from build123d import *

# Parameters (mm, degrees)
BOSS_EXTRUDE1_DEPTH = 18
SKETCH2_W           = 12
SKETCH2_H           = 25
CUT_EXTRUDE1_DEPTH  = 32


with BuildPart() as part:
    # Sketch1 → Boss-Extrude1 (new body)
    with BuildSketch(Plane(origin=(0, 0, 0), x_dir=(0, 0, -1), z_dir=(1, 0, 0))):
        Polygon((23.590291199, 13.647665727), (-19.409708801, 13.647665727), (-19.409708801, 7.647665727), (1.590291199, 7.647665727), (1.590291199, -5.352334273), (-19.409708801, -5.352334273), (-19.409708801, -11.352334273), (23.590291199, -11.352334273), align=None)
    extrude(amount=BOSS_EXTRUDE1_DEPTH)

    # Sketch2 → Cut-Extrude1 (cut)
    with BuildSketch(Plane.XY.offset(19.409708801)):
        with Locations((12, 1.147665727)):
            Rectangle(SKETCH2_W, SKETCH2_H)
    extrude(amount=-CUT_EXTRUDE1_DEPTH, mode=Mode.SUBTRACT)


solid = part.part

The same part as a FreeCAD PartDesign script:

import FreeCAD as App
import Part
import Sketcher
Q = App.Units.Quantity


def add_polygon(sketch, points):
    """Adds a closed chain of lines whose ends are joined by coincident constraints."""
    first, n = sketch.GeometryCount, len(points)
    for a, b in zip(points, points[1:] + points[:1]):
        sketch.addGeometry(Part.LineSegment(App.Vector(*a, 0), App.Vector(*b, 0)), False)
    for i in range(n):
        sketch.addConstraint(Sketcher.Constraint("Coincident", first + i, 2, first + (i + 1) % n, 1))

doc = App.newDocument("Part")
body = doc.addObject("PartDesign::Body", "Body")

sketch1 = body.newObject("Sketcher::SketchObject", "Sketch")
sketch1.AttachmentSupport = (doc.getObject("YZ_Plane"), [""])
sketch1.MapMode = "FlatFace"
add_polygon(sketch1, [(13.647666, -23.590291), (13.647666, 19.409709), (7.647666, 19.409709), (7.647666, -1.590291), (-5.352334, -1.590291), (-5.352334, 19.409709), (-11.352334, 19.409709), (-11.352334, -23.590291)])
sketch1.addConstraint([
    Sketcher.Constraint("Vertical", 0),
    Sketcher.Constraint("Horizontal", 1),
    Sketcher.Constraint("Vertical", 2),
    Sketcher.Constraint("Horizontal", 3),
    Sketcher.Constraint("Vertical", 4),
    Sketcher.Constraint("Horizontal", 5),
    Sketcher.Constraint("Vertical", 6),
    Sketcher.Constraint("Horizontal", 7),
    Sketcher.Constraint("Horizontal", 1, 2, 4, 2),
    Sketcher.Constraint("Equal", 1, 5),
    Sketcher.Constraint("DistanceX", 1, 2, 1, 1, Q("6 mm")),
    Sketcher.Constraint("DistanceX", 3, 2, 3, 1, Q("13 mm")),
    Sketcher.Constraint("DistanceY", 0, 1, 0, 2, Q("43 mm")),
    Sketcher.Constraint("DistanceY", 2, 2, 2, 1, Q("21 mm")),
    Sketcher.Constraint("DistanceY", -1, 1, 0, 2, Q("19.409709 mm")),
    Sketcher.Constraint("DistanceX", -1, 1, 0, 2, Q("13.647666 mm")),
])
pad1 = body.newObject("PartDesign::Pad", "Pad")
pad1.Profile = sketch1
pad1.Length = 18

sketch2 = body.newObject("Sketcher::SketchObject", "Sketch001")
sketch2.AttachmentSupport = (doc.getObject("XY_Plane"), [""])
sketch2.MapMode = "FlatFace"
sketch2.AttachmentOffset = App.Placement(App.Vector(0, 0, 19.409709), App.Rotation())
add_polygon(sketch2, [(6, 13.647666), (6, -11.352334), (18, -11.352334), (18, 13.647666)])
sketch2.addConstraint([
    Sketcher.Constraint("Vertical", 0),
    Sketcher.Constraint("Horizontal", 1),
    Sketcher.Constraint("Vertical", 2),
    Sketcher.Constraint("Horizontal", 3),
    Sketcher.Constraint("DistanceX", 1, 1, 1, 2, Q("12 mm")),
    Sketcher.Constraint("DistanceY", 0, 2, 0, 1, Q("25 mm")),
    Sketcher.Constraint("DistanceX", -1, 1, 0, 2, Q("6 mm")),
    Sketcher.Constraint("DistanceY", 0, 2, -1, 1, Q("11.352334 mm")),
])
pocket1 = body.newObject("PartDesign::Pocket", "Pocket")
pocket1.Profile = sketch2
pocket1.Length = 32

doc.recompute()
